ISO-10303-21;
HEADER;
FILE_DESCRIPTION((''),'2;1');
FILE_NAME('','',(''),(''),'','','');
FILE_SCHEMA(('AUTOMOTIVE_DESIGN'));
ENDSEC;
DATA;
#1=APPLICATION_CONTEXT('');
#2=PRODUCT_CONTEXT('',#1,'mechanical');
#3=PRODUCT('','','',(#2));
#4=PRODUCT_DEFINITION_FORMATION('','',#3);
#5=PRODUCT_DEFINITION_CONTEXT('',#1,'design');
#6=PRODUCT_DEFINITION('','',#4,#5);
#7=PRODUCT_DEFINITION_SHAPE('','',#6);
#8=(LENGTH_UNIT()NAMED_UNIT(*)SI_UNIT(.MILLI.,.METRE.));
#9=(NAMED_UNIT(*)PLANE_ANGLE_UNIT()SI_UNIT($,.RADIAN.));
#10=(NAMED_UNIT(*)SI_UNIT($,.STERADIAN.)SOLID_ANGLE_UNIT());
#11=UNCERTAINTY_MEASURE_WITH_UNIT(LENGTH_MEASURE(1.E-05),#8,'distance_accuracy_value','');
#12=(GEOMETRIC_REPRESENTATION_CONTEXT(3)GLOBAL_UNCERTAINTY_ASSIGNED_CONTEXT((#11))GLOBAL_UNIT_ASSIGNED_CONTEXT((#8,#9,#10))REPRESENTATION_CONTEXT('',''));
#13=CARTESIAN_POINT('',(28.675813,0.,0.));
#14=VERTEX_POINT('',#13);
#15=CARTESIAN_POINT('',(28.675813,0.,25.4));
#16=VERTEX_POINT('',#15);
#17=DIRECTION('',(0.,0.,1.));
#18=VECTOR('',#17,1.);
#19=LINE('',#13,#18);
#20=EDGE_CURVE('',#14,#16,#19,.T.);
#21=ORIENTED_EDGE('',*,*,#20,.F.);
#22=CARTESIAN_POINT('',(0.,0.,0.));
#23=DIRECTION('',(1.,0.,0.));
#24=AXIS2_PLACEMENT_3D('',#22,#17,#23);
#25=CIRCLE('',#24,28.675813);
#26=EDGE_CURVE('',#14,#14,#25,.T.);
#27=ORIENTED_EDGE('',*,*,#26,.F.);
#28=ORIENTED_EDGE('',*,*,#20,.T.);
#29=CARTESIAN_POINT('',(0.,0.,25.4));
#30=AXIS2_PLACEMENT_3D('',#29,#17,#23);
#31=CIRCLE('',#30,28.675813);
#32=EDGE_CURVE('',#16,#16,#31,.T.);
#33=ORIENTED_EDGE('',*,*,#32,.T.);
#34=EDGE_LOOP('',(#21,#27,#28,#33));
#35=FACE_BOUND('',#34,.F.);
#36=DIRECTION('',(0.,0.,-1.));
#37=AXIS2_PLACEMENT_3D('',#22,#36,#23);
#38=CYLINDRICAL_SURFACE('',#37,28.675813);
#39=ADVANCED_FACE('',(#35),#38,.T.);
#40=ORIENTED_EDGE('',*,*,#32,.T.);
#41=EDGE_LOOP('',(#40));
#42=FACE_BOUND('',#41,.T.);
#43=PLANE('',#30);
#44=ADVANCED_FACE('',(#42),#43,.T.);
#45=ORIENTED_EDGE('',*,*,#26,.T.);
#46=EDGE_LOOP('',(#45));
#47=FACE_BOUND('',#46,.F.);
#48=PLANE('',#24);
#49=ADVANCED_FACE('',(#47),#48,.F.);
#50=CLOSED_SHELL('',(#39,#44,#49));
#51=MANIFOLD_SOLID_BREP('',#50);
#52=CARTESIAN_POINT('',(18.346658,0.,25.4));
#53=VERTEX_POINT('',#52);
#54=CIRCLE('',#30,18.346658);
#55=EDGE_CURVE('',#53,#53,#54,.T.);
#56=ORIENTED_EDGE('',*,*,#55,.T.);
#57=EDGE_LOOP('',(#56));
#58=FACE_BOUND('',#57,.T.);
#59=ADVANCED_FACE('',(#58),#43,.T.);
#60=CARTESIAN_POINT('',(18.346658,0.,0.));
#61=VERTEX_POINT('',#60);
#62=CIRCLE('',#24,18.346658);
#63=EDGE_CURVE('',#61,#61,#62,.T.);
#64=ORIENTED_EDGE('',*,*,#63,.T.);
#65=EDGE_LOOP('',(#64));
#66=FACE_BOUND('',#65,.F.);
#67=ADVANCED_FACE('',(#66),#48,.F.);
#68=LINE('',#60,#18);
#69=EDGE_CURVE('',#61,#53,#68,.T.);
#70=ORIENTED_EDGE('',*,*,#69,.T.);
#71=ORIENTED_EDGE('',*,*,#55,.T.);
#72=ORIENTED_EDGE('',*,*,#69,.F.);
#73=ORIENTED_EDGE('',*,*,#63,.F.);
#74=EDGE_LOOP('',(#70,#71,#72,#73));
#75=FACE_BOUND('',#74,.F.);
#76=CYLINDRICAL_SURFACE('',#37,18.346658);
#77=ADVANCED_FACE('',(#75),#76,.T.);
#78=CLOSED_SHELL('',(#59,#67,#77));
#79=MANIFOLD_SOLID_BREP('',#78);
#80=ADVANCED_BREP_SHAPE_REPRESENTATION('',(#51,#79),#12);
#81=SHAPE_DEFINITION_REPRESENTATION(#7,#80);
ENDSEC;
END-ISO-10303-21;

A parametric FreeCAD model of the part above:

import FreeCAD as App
import Part
import Sketcher
from FreeCAD import Vector
Q = App.Units.Quantity

doc = App.newDocument("Part")
body = doc.addObject("PartDesign::Body", "Body")

# Sketch on XY plane
sketch1 = body.newObject("Sketcher::SketchObject", "Sketch")
sketch1.AttachmentSupport = (doc.getObject("XY_Plane"), [""])
sketch1.MapMode = "FlatFace"
sketch1.addGeometry(Part.Circle(Vector(0, 0, 0), Vector(0, 0, 1), 18), False)
sketch1.addConstraint(Sketcher.Constraint("Coincident", 0, 3, -1, 1))
sketch1.addConstraint(Sketcher.Constraint("Diameter", 0, 36.693316))
pad1 = body.newObject("PartDesign::Pad", "Pad")
pad1.Profile = sketch1
pad1.Length = Q("1 in")
body2 = doc.addObject("PartDesign::Body", "Body001")

# Sketch on XY plane
sketch2 = body2.newObject("Sketcher::SketchObject", "Sketch001")
sketch2.AttachmentSupport = (doc.getObject("XY_Plane001"), [""])
sketch2.MapMode = "FlatFace"
sketch2.addGeometry(Part.Circle(Vector(0, 0, 0), Vector(0, 0, 1), 29), False)
sketch2.addConstraint(Sketcher.Constraint("Coincident", 0, 3, -1, 1))
sketch2.addConstraint(Sketcher.Constraint("Diameter", 0, 57.351626))
pad2 = body2.newObject("PartDesign::Pad", "Pad001")
pad2.Profile = sketch2
pad2.Length = Q("1 in")

doc.recompute()
